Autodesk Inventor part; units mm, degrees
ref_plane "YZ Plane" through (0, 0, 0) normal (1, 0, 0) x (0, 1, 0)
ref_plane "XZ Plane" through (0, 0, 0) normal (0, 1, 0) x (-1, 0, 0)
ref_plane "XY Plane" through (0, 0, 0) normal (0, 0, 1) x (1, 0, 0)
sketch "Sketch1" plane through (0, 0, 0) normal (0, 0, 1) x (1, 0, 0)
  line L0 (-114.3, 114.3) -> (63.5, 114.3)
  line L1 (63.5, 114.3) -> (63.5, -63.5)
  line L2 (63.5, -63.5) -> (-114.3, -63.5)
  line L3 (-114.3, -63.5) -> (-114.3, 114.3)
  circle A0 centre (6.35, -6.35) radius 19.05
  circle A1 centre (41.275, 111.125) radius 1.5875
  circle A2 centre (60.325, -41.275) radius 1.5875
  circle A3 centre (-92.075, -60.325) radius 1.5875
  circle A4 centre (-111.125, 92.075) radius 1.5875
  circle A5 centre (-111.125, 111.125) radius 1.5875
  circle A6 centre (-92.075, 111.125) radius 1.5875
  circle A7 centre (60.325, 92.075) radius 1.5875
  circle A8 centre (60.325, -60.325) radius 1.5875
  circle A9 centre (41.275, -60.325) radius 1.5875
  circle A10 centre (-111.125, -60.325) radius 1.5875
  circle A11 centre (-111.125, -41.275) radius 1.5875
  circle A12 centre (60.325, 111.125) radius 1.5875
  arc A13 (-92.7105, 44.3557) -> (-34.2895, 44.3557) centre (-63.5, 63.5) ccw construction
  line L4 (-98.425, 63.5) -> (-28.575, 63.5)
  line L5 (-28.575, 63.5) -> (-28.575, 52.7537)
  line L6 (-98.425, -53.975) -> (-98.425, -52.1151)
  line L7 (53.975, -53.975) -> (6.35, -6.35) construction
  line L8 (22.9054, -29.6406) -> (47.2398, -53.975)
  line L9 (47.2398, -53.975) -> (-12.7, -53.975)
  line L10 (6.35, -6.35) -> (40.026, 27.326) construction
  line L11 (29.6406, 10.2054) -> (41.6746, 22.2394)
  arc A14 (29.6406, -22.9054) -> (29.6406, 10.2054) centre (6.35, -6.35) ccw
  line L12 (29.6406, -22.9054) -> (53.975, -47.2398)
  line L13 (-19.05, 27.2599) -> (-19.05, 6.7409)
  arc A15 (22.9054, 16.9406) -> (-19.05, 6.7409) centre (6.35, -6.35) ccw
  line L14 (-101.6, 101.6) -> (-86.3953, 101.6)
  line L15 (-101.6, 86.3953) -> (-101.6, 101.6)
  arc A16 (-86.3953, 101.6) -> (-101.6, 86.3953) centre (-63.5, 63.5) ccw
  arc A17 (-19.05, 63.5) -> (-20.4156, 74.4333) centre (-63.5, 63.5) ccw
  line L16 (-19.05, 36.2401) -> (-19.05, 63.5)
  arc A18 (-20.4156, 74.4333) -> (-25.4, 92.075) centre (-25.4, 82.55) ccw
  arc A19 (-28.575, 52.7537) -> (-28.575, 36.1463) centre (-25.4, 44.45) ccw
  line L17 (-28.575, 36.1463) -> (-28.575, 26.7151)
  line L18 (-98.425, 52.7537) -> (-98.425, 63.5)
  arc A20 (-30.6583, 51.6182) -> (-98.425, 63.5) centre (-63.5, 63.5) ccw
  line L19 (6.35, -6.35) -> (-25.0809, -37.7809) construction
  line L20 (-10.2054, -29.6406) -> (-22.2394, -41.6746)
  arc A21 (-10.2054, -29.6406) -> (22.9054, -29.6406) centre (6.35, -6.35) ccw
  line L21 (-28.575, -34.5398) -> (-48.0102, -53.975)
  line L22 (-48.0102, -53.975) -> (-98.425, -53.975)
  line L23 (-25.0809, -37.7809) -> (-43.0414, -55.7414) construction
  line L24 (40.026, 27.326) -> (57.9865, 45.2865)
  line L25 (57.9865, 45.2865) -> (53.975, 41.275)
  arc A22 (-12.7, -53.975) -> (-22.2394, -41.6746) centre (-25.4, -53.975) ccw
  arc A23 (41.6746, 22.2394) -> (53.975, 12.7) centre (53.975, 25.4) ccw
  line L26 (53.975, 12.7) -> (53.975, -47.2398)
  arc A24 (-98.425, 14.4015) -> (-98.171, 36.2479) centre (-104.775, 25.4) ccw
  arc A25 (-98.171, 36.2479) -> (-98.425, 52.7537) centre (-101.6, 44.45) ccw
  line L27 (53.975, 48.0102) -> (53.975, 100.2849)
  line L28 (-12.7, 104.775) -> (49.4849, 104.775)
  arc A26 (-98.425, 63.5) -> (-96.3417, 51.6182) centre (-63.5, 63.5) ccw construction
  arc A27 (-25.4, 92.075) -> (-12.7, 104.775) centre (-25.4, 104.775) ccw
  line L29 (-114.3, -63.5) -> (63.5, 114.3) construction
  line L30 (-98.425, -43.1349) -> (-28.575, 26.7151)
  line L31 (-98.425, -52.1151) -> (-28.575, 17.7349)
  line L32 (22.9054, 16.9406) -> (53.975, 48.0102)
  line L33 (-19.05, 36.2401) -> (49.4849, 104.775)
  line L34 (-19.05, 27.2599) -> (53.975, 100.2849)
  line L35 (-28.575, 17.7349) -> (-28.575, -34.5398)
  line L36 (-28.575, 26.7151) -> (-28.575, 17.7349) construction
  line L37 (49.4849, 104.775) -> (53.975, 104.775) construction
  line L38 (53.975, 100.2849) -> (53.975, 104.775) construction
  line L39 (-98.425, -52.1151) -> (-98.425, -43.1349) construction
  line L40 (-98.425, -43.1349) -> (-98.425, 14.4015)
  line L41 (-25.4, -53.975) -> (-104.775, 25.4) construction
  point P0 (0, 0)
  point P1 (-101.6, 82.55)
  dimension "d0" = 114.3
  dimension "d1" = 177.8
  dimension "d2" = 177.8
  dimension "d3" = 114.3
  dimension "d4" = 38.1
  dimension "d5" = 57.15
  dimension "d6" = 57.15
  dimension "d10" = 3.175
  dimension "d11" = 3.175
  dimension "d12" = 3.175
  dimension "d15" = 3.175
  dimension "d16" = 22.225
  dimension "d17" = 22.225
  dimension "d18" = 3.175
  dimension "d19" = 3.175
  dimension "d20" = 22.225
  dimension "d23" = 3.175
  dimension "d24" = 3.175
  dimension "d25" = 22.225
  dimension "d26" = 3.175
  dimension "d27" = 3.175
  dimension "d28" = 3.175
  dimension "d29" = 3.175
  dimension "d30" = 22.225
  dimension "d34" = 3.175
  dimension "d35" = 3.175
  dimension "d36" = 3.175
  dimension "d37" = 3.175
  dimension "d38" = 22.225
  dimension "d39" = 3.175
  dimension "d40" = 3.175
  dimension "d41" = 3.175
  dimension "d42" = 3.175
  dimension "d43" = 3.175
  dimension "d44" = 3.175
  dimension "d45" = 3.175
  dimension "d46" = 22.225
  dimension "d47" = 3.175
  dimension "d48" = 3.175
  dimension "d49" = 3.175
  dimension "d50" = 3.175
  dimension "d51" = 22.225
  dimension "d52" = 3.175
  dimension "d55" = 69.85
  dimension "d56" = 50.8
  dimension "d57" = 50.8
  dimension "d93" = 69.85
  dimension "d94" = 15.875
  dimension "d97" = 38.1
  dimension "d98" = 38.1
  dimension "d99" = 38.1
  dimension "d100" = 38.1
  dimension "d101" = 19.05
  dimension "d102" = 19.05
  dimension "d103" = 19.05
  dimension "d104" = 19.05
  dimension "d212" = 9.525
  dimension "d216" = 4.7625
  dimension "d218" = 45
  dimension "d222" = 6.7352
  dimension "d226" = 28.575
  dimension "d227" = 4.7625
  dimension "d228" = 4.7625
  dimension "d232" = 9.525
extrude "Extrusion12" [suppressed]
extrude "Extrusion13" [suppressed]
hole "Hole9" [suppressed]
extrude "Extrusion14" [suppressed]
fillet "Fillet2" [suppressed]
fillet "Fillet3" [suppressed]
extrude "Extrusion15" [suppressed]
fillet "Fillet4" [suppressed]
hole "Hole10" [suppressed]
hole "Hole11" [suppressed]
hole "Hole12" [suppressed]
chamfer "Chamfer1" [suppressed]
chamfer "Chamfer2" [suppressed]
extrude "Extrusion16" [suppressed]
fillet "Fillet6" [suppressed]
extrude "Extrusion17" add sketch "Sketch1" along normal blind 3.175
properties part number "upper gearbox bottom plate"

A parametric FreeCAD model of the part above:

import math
import FreeCAD as App
import Part
import Sketcher

V = App.Vector
Q = App.Units.Quantity


def add_polygon(sketch, points):
    """Adds a closed chain of lines whose ends are joined by coincident constraints."""
    first, n = sketch.GeometryCount, len(points)
    for a, b in zip(points, points[1:] + points[:1]):
        sketch.addGeometry(Part.LineSegment(App.Vector(*a, 0), App.Vector(*b, 0)), False)
    for i in range(n):
        sketch.addConstraint(Sketcher.Constraint("Coincident", first + i, 2, first + (i + 1) % n, 1))

doc = App.newDocument("Part")
params = doc.addObject("Spreadsheet::Sheet", "Params")
for row, (alias, value) in enumerate([
    ("sketch1_diameter", "1.5 in"),
    ("sketch1_width", "7 in"),
    ("sketch1_diameter2", "0.125 in"),
    ("sketch1_radius", "1.125 in"),
    ("sketch1_radius2", "1.375 in"),
    ("pad1_length", "0.125 in"),
], start=1):
    params.set(f"A{row}", alias)
    params.set(f"B{row}", "=" + value)
    params.setAlias(f"B{row}", alias)

body = doc.addObject("PartDesign::Body", "Body")

sketch1 = doc.addObject("Sketcher::SketchObject", "Sketch")
body.addObject(sketch1)
sketch1.AttachmentSupport = (doc.XY_Plane, [""])
sketch1.MapMode = "FlatFace"
add_polygon(sketch1, [(63.5, 114.3), (-114.3, 114.3), (-114.3, -63.5), (63.5, -63.5)])
sketch1.addGeometry(Part.Circle(V(-111.1, -60.3, 0), V(0, 0, 1), 1.6), False)
sketch1.addGeometry(Part.Circle(V(-92.1, -60.3, 0), V(0, 0, 1), 1.6), False)
sketch1.addGeometry(Part.Circle(V(-111.1, -41.3, 0), V(0, 0, 1), 1.6), False)
add_polygon(sketch1, [(-48, -54), (-98.4, -54), (-98.4, -52.1), (-28.6, 17.7), (-28.6, -34.5)])
sketch1.addGeometry(Part.ArcOfCircle(Part.Circle(V(6.3, -6.3, 0), V(0, 0, 1), 28.6), math.radians(-125), math.radians(-55)), False)
sketch1.addGeometry(Part.LineSegment(V(22.9, -29.6, 0), V(47.2, -54, 0)), False)
sketch1.addGeometry(Part.LineSegment(V(47.2, -54, 0), V(-12.7, -54, 0)), False)
sketch1.addGeometry(Part.ArcOfCircle(Part.Circle(V(-25.4, -54, 0), V(0, 0, 1), 12.7), math.radians(0), math.radians(76)), False)
sketch1.addGeometry(Part.LineSegment(V(-22.2, -41.7, 0), V(-10.2, -29.6, 0)), False)
sketch1.addGeometry(Part.Circle(V(41.3, -60.3, 0), V(0, 0, 1), 1.6), False)
sketch1.addGeometry(Part.Circle(V(60.3, -60.3, 0), V(0, 0, 1), 1.6), False)
sketch1.addGeometry(Part.Circle(V(60.3, -41.3, 0), V(0, 0, 1), 1.6), False)
sketch1.addGeometry(Part.Circle(V(6.3, -6.3, 0), V(0, 0, 1), 19.1), False)
sketch1.addGeometry(Part.ArcOfCircle(Part.Circle(V(6.3, -6.3, 0), V(0, 0, 1), 28.6), math.radians(-35), math.radians(35)), False)
sketch1.addGeometry(Part.LineSegment(V(29.6, 10.2, 0), V(41.7, 22.2, 0)), False)
sketch1.addGeometry(Part.ArcOfCircle(Part.Circle(V(54, 25.4, 0), V(0, 0, 1), 12.7), math.radians(-166), math.radians(-90)), False)
sketch1.addGeometry(Part.LineSegment(V(54, 12.7, 0), V(54, -47.2, 0)), False)
sketch1.addGeometry(Part.LineSegment(V(54, -47.2, 0), V(29.6, -22.9, 0)), False)
sketch1.addGeometry(Part.LineSegment(V(-98.4, 52.8, 0), V(-98.4, 63.5, 0)), False)
sketch1.addGeometry(Part.ArcOfCircle(Part.Circle(V(-63.5, 63.5, 0), V(0, 0, 1), 34.9), math.radians(0), math.radians(180)), False)
sketch1.addGeometry(Part.LineSegment(V(-28.6, 63.5, 0), V(-28.6, 52.8, 0)), False)
sketch1.addGeometry(Part.ArcOfCircle(Part.Circle(V(-25.4, 44.5, 0), V(0, 0, 1), 8.9), math.radians(111), math.radians(249)), False)
sketch1.addGeometry(Part.LineSegment(V(-28.6, 36.1, 0), V(-28.6, 26.7, 0)), False)
sketch1.addGeometry(Part.LineSegment(V(-28.6, 26.7, 0), V(-98.4, -43.1, 0)), False)
sketch1.addGeometry(Part.LineSegment(V(-98.4, -43.1, 0), V(-98.4, 14.4, 0)), False)
sketch1.addGeometry(Part.ArcOfCircle(Part.Circle(V(-104.8, 25.4, 0), V(0, 0, 1), 12.7), math.radians(-60), math.radians(59)), False)
sketch1.addGeometry(Part.ArcOfCircle(Part.Circle(V(-101.6, 44.5, 0), V(0, 0, 1), 8.9), math.radians(-67), math.radians(69)), False)
sketch1.addGeometry(Part.Circle(V(-111.1, 92.1, 0), V(0, 0, 1), 1.6), False)
sketch1.addGeometry(Part.LineSegment(V(-101.6, 86.4, 0), V(-101.6, 101.6, 0)), False)
sketch1.addGeometry(Part.LineSegment(V(-101.6, 101.6, 0), V(-86.4, 101.6, 0)), False)
sketch1.addGeometry(Part.ArcOfCircle(Part.Circle(V(-63.5, 63.5, 0), V(0, 0, 1), 44.5), math.radians(121), math.radians(149)), False)
sketch1.addGeometry(Part.Circle(V(-111.1, 111.1, 0), V(0, 0, 1), 1.6), False)
sketch1.addGeometry(Part.Circle(V(-92.1, 111.1, 0), V(0, 0, 1), 1.6), False)
sketch1.addGeometry(Part.LineSegment(V(-19.1, 6.7, 0), V(-19.1, 27.3, 0)), False)
sketch1.addGeometry(Part.LineSegment(V(-19.1, 27.3, 0), V(54, 100.3, 0)), False)
sketch1.addGeometry(Part.LineSegment(V(54, 100.3, 0), V(54, 48, 0)), False)
sketch1.addGeometry(Part.LineSegment(V(54, 48, 0), V(22.9, 16.9, 0)), False)
sketch1.addGeometry(Part.ArcOfCircle(Part.Circle(V(6.3, -6.3, 0), V(0, 0, 1), 28.6), math.radians(55), math.radians(153)), False)
sketch1.addGeometry(Part.LineSegment(V(-19.1, 36.2, 0), V(-19.1, 63.5, 0)), False)
sketch1.addGeometry(Part.ArcOfCircle(Part.Circle(V(-63.5, 63.5, 0), V(0, 0, 1), 44.5), math.radians(0), math.radians(14.24)), False)
sketch1.addGeometry(Part.ArcOfCircle(Part.Circle(V(-25.4, 82.5, 0), V(0, 0, 1), 9.5), math.radians(-58), math.radians(90)), False)
sketch1.addGeometry(Part.ArcOfCircle(Part.Circle(V(-25.4, 104.8, 0), V(0, 0, 1), 12.7), math.radians(-90), math.radians(0)), False)
sketch1.addGeometry(Part.LineSegment(V(-12.7, 104.8, 0), V(49.5, 104.8, 0)), False)
sketch1.addGeometry(Part.LineSegment(V(49.5, 104.8, 0), V(-19.1, 36.2, 0)), False)
sketch1.addGeometry(Part.Circle(V(60.3, 92.1, 0), V(0, 0, 1), 1.6), False)
sketch1.addGeometry(Part.Circle(V(41.3, 111.1, 0), V(0, 0, 1), 1.6), False)
sketch1.addGeometry(Part.Circle(V(60.3, 111.1, 0), V(0, 0, 1), 1.6), False)
sketch1.addConstraint(Sketcher.Constraint("Coincident", 12, 2, 13, 1))
sketch1.addConstraint(Sketcher.Constraint("Coincident", 13, 2, 14, 1))
sketch1.addConstraint(Sketcher.Constraint("Coincident", 14, 2, 15, 1))
sketch1.addConstraint(Sketcher.Constraint("Coincident", 15, 2, 16, 1))
sketch1.addConstraint(Sketcher.Constraint("Coincident", 16, 2, 12, 1))
sketch1.addConstraint(Sketcher.Constraint("Coincident", 21, 2, 22, 1))
sketch1.addConstraint(Sketcher.Constraint("Coincident", 22, 2, 23, 1))
sketch1.addConstraint(Sketcher.Constraint("Coincident", 23, 2, 24, 1))
sketch1.addConstraint(Sketcher.Constraint("Coincident", 24, 2, 25, 1))
sketch1.addConstraint(Sketcher.Constraint("Coincident", 25, 2, 21, 1))
sketch1.addConstraint(Sketcher.Constraint("Tangent", 26, 2, 27, 2))
sketch1.addConstraint(Sketcher.Constraint("Tangent", 27, 1, 28, 1))
sketch1.addConstraint(Sketcher.Constraint("Coincident", 28, 2, 29, 1))
sketch1.addConstraint(Sketcher.Constraint("Coincident", 29, 2, 30, 1))
sketch1.addConstraint(Sketcher.Constraint("Coincident", 30, 2, 31, 1))
sketch1.addConstraint(Sketcher.Constraint("Coincident", 31, 2, 32, 1))
sketch1.addConstraint(Sketcher.Constraint("Coincident", 32, 2, 33, 1))
sketch1.addConstraint(Sketcher.Constraint("Coincident", 33, 2, 34, 1))
sketch1.addConstraint(Sketcher.Constraint("Coincident", 34, 2, 26, 1))
sketch1.addConstraint(Sketcher.Constraint("Coincident", 36, 2, 37, 1))
sketch1.addConstraint(Sketcher.Constraint("Coincident", 37, 2, 38, 1))
sketch1.addConstraint(Sketcher.Constraint("Coincident", 38, 2, 36, 1))
sketch1.addConstraint(Sketcher.Constraint("Coincident", 41, 2, 42, 1))
sketch1.addConstraint(Sketcher.Constraint("Coincident", 42, 2, 43, 1))
sketch1.addConstraint(Sketcher.Constraint("Coincident", 43, 2, 44, 1))
sketch1.addConstraint(Sketcher.Constraint("Coincident", 44, 2, 45, 1))
sketch1.addConstraint(Sketcher.Constraint("Coincident", 45, 2, 41, 1))
sketch1.addConstraint(Sketcher.Constraint("Tangent", 46, 2, 47, 1))
sketch1.addConstraint(Sketcher.Constraint("Coincident", 47, 2, 48, 1))
sketch1.addConstraint(Sketcher.Constraint("Tangent", 48, 2, 49, 1))
sketch1.addConstraint(Sketcher.Constraint("Coincident", 49, 2, 50, 1))
sketch1.addConstraint(Sketcher.Constraint("Coincident", 50, 2, 51, 1))
sketch1.addConstraint(Sketcher.Constraint("Coincident", 51, 2, 46, 1))
sketch1.addConstraint(Sketcher.Constraint("Horizontal", 0))
sketch1.addConstraint(Sketcher.Constraint("Vertical", 1))
sketch1.addConstraint(Sketcher.Constraint("Horizontal", 2))
sketch1.addConstraint(Sketcher.Constraint("Vertical", 3))
sketch1.addConstraint(Sketcher.Constraint("Horizontal", 7))
sketch1.addConstraint(Sketcher.Constraint("Vertical", 8))
sketch1.addConstraint(Sketcher.Constraint("Vertical", 10))
sketch1.addConstraint(Sketcher.Constraint("Horizontal", 14))
sketch1.addConstraint(Sketcher.Constraint("Vertical", 24))
sketch1.addConstraint(Sketcher.Constraint("Vertical", 26))
sketch1.addConstraint(Sketcher.Constraint("Vertical", 28))
sketch1.addConstraint(Sketcher.Constraint("Vertical", 30))
sketch1.addConstraint(Sketcher.Constraint("Vertical", 32))
sketch1.addConstraint(Sketcher.Constraint("Vertical", 36))
sketch1.addConstraint(Sketcher.Constraint("Horizontal", 37))
sketch1.addConstraint(Sketcher.Constraint("Vertical", 41))
sketch1.addConstraint(Sketcher.Constraint("Vertical", 43))
sketch1.addConstraint(Sketcher.Constraint("Vertical", 46))
sketch1.addConstraint(Sketcher.Constraint("Horizontal", 50))
sketch1.addConstraint(Sketcher.Constraint("Coincident", 20, 3, 12, 3))
sketch1.addConstraint(Sketcher.Constraint("Coincident", 21, 3, 12, 3))
sketch1.addConstraint(Sketcher.Constraint("Coincident", 38, 3, 27, 3))
sketch1.addConstraint(Sketcher.Constraint("Coincident", 45, 3, 12, 3))
sketch1.addConstraint(Sketcher.Constraint("Coincident", 47, 3, 27, 3))
sketch1.addConstraint(Sketcher.Constraint("Equal", 4, 5))
sketch1.addConstraint(Sketcher.Constraint("Equal", 5, 6))
sketch1.addConstraint(Sketcher.Constraint("Equal", 6, 17))
sketch1.addConstraint(Sketcher.Constraint("Equal", 17, 18))
sketch1.addConstraint(Sketcher.Constraint("Equal", 18, 19))
sketch1.addConstraint(Sketcher.Constraint("Equal", 12, 21))
sketch1.addConstraint(Sketcher.Constraint("Equal", 15, 23))
sketch1.addConstraint(Sketcher.Constraint("Equal", 23, 33))
sketch1.addConstraint(Sketcher.Constraint("Equal", 29, 34))
sketch1.addConstraint(Sketcher.Constraint("Equal", 19, 35))
sketch1.addConstraint(Sketcher.Constraint("Equal", 35, 39))
sketch1.addConstraint(Sketcher.Constraint("Equal", 39, 40))
sketch1.addConstraint(Sketcher.Constraint("Equal", 21, 45))
sketch1.addConstraint(Sketcher.Constraint("Equal", 38, 47))
sketch1.addConstraint(Sketcher.Constraint("Equal", 33, 49))
sketch1.addConstraint(Sketcher.Constraint("Equal", 40, 52))
sketch1.addConstraint(Sketcher.Constraint("Equal", 52, 53))
sketch1.addConstraint(Sketcher.Constraint("Equal", 53, 54))
sketch1.addConstraint(Sketcher.Constraint("Parallel", 9, 11))
sketch1.addConstraint(Sketcher.Constraint("Perpendicular", 11, 13))
sketch1.addConstraint(Sketcher.Constraint("Perpendicular", 13, 16))
sketch1.addConstraint(Sketcher.Constraint("Parallel", 16, 22))
sketch1.addConstraint(Sketcher.Constraint("Perpendicular", 22, 25))
sketch1.addConstraint(Sketcher.Constraint("Perpendicular", 25, 31))
sketch1.addConstraint(Sketcher.Constraint("Parallel", 31, 42))
sketch1.addConstraint(Sketcher.Constraint("Parallel", 42, 44))
sketch1.addConstraint(Sketcher.Constraint("Parallel", 44, 51))
sketch1.addConstraint(Sketcher.Constraint("Horizontal", 4, 3, 5, 3))
sketch1.addConstraint(Sketcher.Constraint("Horizontal", 5, 3, 17, 3))
sketch1.addConstraint(Sketcher.Constraint("Horizontal", 17, 3, 18, 3))
sketch1.addConstraint(Sketcher.Constraint("Horizontal", 6, 3, 19, 3))
sketch1.addConstraint(Sketcher.Constraint("Horizontal", 23, 3, 33, 3))
sketch1.addConstraint(Sketcher.Constraint("Horizontal", 29, 3, 34, 3))
sketch1.addConstraint(Sketcher.Constraint("Horizontal", 39, 3, 40, 3))
sketch1.addConstraint(Sketcher.Constraint("Horizontal", 35, 3, 52, 3))
sketch1.addConstraint(Sketcher.Constraint("Horizontal", 40, 3, 53, 3))
sketch1.addConstraint(Sketcher.Constraint("Horizontal", 53, 3, 54, 3))
sketch1.addConstraint(Sketcher.Constraint("Horizontal", 15, 3, 7, 2))
sketch1.addConstraint(Sketcher.Constraint("Horizontal", 11, 2, 13, 2))
sketch1.addConstraint(Sketcher.Constraint("Horizontal", 12, 2, 16, 2))
sketch1.addConstraint(Sketcher.Constraint("Horizontal", 28, 2, 34, 2))
sketch1.addConstraint(Sketcher.Constraint("Horizontal", 52, 3, 48, 2))
sketch1.addConstraint(Sketcher.Constraint("Vertical", 4, 3, 6, 3))
sketch1.addConstraint(Sketcher.Constraint("Vertical", 18, 3, 19, 3))
sketch1.addConstraint(Sketcher.Constraint("Vertical", 15, 3, 29, 3))
sketch1.addConstraint(Sketcher.Constraint("Vertical", 6, 3, 35, 3))
sketch1.addConstraint(Sketcher.Constraint("Vertical", 35, 3, 39, 3))
sketch1.addConstraint(Sketcher.Constraint("Vertical", 5, 3, 40, 3))
sketch1.addConstraint(Sketcher.Constraint("Vertical", 29, 3, 48, 3))
sketch1.addConstraint(Sketcher.Constraint("Vertical", 48, 3, 49, 3))
sketch1.addConstraint(Sketcher.Constraint("Vertical", 19, 3, 52, 3))
sketch1.addConstraint(Sketcher.Constraint("Vertical", 17, 3, 53, 3))
sketch1.addConstraint(Sketcher.Constraint("Vertical", 52, 3, 54, 3))
sketch1.addConstraint(Sketcher.Constraint("Vertical", 21, 2, 25, 2))
sketch1.addConstraint(Sketcher.Constraint("Vertical", 8, 2, 26, 2))
sketch1.addConstraint(Sketcher.Constraint("Vertical", 10, 2, 27, 1))
sketch1.addConstraint(Sketcher.Constraint("Vertical", 28, 2, 29, 2))
sketch1.addConstraint(Sketcher.Constraint("Vertical", 26, 2, 31, 2))
sketch1.addConstraint(Sketcher.Constraint("Vertical", 34, 3, 36, 2))
sketch1.addConstraint(Sketcher.Constraint("Vertical", 24, 2, 42, 2))
sketch1.addConstraint(Sketcher.Constraint("Vertical", 12, 2, 44, 2))
sketch1.addConstraint(Sketcher.Constraint("Vertical", 45, 2, 46, 2))
sketch1.addConstraint(Sketcher.Constraint("Equal", 2, 1))
sketch1.addConstraint(Sketcher.Constraint("Equal", 14, 24))
sketch1.addConstraint(Sketcher.Constraint("Equal", 37, 36))
sketch1.addConstraint(Sketcher.Constraint("Equal", 10, 43))
sketch1.addConstraint(Sketcher.Constraint("Equal", 16, 22))
sketch1.addConstraint(Sketcher.Constraint("Equal", 13, 25))
sketch1.addConstraint(Sketcher.Constraint("Diameter", 20, Q("1.5 in")))
sketch1.addConstraint(Sketcher.Constraint("DistanceX", 0, 2, 0, 1, Q("7 in")))
sketch1.addConstraint(Sketcher.Constraint("Diameter", 4, Q("0.125 in")))
sketch1.addConstraint(Sketcher.Constraint("Angle", 9, Q("45 deg")))
sketch1.addConstraint(Sketcher.Constraint("Radius", 12, Q("1.125 in")))
sketch1.addConstraint(Sketcher.Constraint("Radius", 27, Q("1.375 in")))
sketch1.addConstraint(Sketcher.Constraint("Radius", 48, Q("0.375 in")))
sketch1.addConstraint(Sketcher.Constraint("DistanceX", 0, 2, -1, 1, Q("4.5 in")))
sketch1.addConstraint(Sketcher.Constraint("DistanceY", -1, 1, 0, 2, Q("4.5 in")))
sketch1.addConstraint(Sketcher.Constraint("Radius", 15, Q("0.5 in")))
sketch1.addConstraint(Sketcher.Constraint("DistanceX", 41, 2, -1, 1, Q("0.75 in")))
sketch1.addConstraint(Sketcher.Constraint("Radius", 29, Q("0.35 in")))
sketch1.addConstraint(Sketcher.Constraint("Radius", 38, Q("1.75 in")))
sketch1.addConstraint(Sketcher.Constraint("DistanceX", 15, 3, -1, 1, Q("1 in")))
sketch1.addConstraint(Sketcher.Constraint("DistanceY", -1, 1, 23, 3, Q("1 in")))
sketch1.addConstraint(Sketcher.Constraint("DistanceY", -1, 1, 36, 2, Q("4 in")))
sketch1.addConstraint(Sketcher.Constraint("DistanceX", -1, 1, 12, 3, Q("0.25 in")))
sketch1.addConstraint(Sketcher.Constraint("DistanceY", 12, 3, -1, 1, Q("0.25 in")))
sketch1.addConstraint(Sketcher.Constraint("DistanceY", -1, 1, 29, 3, Q("1.75 in")))
sketch1.addConstraint(Sketcher.Constraint("DistanceY", -1, 1, 48, 3, Q("3.25 in")))
sketch1.addConstraint(Sketcher.Constraint("DistanceY", 30, 2, 30, 1, Q("0.3713 in")))
sketch1.addConstraint(Sketcher.Constraint("DistanceX", 4, 3, -1, 1, Q("4.375 in")))
sketch1.addConstraint(Sketcher.Constraint("DistanceY", 4, 3, -1, 1, Q("2.375 in")))
sketch1.addConstraint(Sketcher.Constraint("DistanceX", 5, 3, -1, 1, Q("3.625 in")))
sketch1.addConstraint(Sketcher.Constraint("DistanceY", 6, 3, -1, 1, Q("1.625 in")))
sketch1.addConstraint(Sketcher.Constraint("DistanceY", 15, 3, -1, 1, Q("2.125 in")))
sketch1.addConstraint(Sketcher.Constraint("DistanceX", -1, 1, 17, 3, Q("1.625 in")))
sketch1.addConstraint(Sketcher.Constraint("DistanceX", -1, 1, 18, 3, Q("2.375 in")))
sketch1.addConstraint(Sketcher.Constraint("DistanceX", 33, 3, -1, 1, Q("4.125 in")))
sketch1.addConstraint(Sketcher.Constraint("DistanceY", -1, 1, 39, 3, Q("4.375 in")))
sketch1.addConstraint(Sketcher.Constraint("DistanceY", -1, 1, 49, 2, Q("4.125 in")))
sketch1.addConstraint(Sketcher.Constraint("Distance", 11, Q("1.0821 in")))
sketch1.addConstraint(Sketcher.Constraint("DistanceX", 14, 2, 14, 1, Q("59.9398 mm")))
sketch1.addConstraint(Sketcher.Constraint("DistanceX", 50, 1, 50, 2, Q("62.185 mm")))
sketch1.addConstraint(Sketcher.Constraint("DistanceY", 8, 1, 8, 2, Q("1.86 mm")))
sketch1.setExpression("Constraints[134]", "Params.sketch1_diameter")
sketch1.setExpression("Constraints[135]", "Params.sketch1_width")
sketch1.setExpression("Constraints[136]", "Params.sketch1_diameter2")
sketch1.setExpression("Constraints[138]", "Params.sketch1_radius")
sketch1.setExpression("Constraints[139]", "Params.sketch1_radius2")
pad1 = doc.addObject("PartDesign::Pad", "Pad")
body.addObject(pad1)
pad1.Profile = sketch1
pad1.setExpression("Length", "Params.pad1_length")

doc.recompute()
